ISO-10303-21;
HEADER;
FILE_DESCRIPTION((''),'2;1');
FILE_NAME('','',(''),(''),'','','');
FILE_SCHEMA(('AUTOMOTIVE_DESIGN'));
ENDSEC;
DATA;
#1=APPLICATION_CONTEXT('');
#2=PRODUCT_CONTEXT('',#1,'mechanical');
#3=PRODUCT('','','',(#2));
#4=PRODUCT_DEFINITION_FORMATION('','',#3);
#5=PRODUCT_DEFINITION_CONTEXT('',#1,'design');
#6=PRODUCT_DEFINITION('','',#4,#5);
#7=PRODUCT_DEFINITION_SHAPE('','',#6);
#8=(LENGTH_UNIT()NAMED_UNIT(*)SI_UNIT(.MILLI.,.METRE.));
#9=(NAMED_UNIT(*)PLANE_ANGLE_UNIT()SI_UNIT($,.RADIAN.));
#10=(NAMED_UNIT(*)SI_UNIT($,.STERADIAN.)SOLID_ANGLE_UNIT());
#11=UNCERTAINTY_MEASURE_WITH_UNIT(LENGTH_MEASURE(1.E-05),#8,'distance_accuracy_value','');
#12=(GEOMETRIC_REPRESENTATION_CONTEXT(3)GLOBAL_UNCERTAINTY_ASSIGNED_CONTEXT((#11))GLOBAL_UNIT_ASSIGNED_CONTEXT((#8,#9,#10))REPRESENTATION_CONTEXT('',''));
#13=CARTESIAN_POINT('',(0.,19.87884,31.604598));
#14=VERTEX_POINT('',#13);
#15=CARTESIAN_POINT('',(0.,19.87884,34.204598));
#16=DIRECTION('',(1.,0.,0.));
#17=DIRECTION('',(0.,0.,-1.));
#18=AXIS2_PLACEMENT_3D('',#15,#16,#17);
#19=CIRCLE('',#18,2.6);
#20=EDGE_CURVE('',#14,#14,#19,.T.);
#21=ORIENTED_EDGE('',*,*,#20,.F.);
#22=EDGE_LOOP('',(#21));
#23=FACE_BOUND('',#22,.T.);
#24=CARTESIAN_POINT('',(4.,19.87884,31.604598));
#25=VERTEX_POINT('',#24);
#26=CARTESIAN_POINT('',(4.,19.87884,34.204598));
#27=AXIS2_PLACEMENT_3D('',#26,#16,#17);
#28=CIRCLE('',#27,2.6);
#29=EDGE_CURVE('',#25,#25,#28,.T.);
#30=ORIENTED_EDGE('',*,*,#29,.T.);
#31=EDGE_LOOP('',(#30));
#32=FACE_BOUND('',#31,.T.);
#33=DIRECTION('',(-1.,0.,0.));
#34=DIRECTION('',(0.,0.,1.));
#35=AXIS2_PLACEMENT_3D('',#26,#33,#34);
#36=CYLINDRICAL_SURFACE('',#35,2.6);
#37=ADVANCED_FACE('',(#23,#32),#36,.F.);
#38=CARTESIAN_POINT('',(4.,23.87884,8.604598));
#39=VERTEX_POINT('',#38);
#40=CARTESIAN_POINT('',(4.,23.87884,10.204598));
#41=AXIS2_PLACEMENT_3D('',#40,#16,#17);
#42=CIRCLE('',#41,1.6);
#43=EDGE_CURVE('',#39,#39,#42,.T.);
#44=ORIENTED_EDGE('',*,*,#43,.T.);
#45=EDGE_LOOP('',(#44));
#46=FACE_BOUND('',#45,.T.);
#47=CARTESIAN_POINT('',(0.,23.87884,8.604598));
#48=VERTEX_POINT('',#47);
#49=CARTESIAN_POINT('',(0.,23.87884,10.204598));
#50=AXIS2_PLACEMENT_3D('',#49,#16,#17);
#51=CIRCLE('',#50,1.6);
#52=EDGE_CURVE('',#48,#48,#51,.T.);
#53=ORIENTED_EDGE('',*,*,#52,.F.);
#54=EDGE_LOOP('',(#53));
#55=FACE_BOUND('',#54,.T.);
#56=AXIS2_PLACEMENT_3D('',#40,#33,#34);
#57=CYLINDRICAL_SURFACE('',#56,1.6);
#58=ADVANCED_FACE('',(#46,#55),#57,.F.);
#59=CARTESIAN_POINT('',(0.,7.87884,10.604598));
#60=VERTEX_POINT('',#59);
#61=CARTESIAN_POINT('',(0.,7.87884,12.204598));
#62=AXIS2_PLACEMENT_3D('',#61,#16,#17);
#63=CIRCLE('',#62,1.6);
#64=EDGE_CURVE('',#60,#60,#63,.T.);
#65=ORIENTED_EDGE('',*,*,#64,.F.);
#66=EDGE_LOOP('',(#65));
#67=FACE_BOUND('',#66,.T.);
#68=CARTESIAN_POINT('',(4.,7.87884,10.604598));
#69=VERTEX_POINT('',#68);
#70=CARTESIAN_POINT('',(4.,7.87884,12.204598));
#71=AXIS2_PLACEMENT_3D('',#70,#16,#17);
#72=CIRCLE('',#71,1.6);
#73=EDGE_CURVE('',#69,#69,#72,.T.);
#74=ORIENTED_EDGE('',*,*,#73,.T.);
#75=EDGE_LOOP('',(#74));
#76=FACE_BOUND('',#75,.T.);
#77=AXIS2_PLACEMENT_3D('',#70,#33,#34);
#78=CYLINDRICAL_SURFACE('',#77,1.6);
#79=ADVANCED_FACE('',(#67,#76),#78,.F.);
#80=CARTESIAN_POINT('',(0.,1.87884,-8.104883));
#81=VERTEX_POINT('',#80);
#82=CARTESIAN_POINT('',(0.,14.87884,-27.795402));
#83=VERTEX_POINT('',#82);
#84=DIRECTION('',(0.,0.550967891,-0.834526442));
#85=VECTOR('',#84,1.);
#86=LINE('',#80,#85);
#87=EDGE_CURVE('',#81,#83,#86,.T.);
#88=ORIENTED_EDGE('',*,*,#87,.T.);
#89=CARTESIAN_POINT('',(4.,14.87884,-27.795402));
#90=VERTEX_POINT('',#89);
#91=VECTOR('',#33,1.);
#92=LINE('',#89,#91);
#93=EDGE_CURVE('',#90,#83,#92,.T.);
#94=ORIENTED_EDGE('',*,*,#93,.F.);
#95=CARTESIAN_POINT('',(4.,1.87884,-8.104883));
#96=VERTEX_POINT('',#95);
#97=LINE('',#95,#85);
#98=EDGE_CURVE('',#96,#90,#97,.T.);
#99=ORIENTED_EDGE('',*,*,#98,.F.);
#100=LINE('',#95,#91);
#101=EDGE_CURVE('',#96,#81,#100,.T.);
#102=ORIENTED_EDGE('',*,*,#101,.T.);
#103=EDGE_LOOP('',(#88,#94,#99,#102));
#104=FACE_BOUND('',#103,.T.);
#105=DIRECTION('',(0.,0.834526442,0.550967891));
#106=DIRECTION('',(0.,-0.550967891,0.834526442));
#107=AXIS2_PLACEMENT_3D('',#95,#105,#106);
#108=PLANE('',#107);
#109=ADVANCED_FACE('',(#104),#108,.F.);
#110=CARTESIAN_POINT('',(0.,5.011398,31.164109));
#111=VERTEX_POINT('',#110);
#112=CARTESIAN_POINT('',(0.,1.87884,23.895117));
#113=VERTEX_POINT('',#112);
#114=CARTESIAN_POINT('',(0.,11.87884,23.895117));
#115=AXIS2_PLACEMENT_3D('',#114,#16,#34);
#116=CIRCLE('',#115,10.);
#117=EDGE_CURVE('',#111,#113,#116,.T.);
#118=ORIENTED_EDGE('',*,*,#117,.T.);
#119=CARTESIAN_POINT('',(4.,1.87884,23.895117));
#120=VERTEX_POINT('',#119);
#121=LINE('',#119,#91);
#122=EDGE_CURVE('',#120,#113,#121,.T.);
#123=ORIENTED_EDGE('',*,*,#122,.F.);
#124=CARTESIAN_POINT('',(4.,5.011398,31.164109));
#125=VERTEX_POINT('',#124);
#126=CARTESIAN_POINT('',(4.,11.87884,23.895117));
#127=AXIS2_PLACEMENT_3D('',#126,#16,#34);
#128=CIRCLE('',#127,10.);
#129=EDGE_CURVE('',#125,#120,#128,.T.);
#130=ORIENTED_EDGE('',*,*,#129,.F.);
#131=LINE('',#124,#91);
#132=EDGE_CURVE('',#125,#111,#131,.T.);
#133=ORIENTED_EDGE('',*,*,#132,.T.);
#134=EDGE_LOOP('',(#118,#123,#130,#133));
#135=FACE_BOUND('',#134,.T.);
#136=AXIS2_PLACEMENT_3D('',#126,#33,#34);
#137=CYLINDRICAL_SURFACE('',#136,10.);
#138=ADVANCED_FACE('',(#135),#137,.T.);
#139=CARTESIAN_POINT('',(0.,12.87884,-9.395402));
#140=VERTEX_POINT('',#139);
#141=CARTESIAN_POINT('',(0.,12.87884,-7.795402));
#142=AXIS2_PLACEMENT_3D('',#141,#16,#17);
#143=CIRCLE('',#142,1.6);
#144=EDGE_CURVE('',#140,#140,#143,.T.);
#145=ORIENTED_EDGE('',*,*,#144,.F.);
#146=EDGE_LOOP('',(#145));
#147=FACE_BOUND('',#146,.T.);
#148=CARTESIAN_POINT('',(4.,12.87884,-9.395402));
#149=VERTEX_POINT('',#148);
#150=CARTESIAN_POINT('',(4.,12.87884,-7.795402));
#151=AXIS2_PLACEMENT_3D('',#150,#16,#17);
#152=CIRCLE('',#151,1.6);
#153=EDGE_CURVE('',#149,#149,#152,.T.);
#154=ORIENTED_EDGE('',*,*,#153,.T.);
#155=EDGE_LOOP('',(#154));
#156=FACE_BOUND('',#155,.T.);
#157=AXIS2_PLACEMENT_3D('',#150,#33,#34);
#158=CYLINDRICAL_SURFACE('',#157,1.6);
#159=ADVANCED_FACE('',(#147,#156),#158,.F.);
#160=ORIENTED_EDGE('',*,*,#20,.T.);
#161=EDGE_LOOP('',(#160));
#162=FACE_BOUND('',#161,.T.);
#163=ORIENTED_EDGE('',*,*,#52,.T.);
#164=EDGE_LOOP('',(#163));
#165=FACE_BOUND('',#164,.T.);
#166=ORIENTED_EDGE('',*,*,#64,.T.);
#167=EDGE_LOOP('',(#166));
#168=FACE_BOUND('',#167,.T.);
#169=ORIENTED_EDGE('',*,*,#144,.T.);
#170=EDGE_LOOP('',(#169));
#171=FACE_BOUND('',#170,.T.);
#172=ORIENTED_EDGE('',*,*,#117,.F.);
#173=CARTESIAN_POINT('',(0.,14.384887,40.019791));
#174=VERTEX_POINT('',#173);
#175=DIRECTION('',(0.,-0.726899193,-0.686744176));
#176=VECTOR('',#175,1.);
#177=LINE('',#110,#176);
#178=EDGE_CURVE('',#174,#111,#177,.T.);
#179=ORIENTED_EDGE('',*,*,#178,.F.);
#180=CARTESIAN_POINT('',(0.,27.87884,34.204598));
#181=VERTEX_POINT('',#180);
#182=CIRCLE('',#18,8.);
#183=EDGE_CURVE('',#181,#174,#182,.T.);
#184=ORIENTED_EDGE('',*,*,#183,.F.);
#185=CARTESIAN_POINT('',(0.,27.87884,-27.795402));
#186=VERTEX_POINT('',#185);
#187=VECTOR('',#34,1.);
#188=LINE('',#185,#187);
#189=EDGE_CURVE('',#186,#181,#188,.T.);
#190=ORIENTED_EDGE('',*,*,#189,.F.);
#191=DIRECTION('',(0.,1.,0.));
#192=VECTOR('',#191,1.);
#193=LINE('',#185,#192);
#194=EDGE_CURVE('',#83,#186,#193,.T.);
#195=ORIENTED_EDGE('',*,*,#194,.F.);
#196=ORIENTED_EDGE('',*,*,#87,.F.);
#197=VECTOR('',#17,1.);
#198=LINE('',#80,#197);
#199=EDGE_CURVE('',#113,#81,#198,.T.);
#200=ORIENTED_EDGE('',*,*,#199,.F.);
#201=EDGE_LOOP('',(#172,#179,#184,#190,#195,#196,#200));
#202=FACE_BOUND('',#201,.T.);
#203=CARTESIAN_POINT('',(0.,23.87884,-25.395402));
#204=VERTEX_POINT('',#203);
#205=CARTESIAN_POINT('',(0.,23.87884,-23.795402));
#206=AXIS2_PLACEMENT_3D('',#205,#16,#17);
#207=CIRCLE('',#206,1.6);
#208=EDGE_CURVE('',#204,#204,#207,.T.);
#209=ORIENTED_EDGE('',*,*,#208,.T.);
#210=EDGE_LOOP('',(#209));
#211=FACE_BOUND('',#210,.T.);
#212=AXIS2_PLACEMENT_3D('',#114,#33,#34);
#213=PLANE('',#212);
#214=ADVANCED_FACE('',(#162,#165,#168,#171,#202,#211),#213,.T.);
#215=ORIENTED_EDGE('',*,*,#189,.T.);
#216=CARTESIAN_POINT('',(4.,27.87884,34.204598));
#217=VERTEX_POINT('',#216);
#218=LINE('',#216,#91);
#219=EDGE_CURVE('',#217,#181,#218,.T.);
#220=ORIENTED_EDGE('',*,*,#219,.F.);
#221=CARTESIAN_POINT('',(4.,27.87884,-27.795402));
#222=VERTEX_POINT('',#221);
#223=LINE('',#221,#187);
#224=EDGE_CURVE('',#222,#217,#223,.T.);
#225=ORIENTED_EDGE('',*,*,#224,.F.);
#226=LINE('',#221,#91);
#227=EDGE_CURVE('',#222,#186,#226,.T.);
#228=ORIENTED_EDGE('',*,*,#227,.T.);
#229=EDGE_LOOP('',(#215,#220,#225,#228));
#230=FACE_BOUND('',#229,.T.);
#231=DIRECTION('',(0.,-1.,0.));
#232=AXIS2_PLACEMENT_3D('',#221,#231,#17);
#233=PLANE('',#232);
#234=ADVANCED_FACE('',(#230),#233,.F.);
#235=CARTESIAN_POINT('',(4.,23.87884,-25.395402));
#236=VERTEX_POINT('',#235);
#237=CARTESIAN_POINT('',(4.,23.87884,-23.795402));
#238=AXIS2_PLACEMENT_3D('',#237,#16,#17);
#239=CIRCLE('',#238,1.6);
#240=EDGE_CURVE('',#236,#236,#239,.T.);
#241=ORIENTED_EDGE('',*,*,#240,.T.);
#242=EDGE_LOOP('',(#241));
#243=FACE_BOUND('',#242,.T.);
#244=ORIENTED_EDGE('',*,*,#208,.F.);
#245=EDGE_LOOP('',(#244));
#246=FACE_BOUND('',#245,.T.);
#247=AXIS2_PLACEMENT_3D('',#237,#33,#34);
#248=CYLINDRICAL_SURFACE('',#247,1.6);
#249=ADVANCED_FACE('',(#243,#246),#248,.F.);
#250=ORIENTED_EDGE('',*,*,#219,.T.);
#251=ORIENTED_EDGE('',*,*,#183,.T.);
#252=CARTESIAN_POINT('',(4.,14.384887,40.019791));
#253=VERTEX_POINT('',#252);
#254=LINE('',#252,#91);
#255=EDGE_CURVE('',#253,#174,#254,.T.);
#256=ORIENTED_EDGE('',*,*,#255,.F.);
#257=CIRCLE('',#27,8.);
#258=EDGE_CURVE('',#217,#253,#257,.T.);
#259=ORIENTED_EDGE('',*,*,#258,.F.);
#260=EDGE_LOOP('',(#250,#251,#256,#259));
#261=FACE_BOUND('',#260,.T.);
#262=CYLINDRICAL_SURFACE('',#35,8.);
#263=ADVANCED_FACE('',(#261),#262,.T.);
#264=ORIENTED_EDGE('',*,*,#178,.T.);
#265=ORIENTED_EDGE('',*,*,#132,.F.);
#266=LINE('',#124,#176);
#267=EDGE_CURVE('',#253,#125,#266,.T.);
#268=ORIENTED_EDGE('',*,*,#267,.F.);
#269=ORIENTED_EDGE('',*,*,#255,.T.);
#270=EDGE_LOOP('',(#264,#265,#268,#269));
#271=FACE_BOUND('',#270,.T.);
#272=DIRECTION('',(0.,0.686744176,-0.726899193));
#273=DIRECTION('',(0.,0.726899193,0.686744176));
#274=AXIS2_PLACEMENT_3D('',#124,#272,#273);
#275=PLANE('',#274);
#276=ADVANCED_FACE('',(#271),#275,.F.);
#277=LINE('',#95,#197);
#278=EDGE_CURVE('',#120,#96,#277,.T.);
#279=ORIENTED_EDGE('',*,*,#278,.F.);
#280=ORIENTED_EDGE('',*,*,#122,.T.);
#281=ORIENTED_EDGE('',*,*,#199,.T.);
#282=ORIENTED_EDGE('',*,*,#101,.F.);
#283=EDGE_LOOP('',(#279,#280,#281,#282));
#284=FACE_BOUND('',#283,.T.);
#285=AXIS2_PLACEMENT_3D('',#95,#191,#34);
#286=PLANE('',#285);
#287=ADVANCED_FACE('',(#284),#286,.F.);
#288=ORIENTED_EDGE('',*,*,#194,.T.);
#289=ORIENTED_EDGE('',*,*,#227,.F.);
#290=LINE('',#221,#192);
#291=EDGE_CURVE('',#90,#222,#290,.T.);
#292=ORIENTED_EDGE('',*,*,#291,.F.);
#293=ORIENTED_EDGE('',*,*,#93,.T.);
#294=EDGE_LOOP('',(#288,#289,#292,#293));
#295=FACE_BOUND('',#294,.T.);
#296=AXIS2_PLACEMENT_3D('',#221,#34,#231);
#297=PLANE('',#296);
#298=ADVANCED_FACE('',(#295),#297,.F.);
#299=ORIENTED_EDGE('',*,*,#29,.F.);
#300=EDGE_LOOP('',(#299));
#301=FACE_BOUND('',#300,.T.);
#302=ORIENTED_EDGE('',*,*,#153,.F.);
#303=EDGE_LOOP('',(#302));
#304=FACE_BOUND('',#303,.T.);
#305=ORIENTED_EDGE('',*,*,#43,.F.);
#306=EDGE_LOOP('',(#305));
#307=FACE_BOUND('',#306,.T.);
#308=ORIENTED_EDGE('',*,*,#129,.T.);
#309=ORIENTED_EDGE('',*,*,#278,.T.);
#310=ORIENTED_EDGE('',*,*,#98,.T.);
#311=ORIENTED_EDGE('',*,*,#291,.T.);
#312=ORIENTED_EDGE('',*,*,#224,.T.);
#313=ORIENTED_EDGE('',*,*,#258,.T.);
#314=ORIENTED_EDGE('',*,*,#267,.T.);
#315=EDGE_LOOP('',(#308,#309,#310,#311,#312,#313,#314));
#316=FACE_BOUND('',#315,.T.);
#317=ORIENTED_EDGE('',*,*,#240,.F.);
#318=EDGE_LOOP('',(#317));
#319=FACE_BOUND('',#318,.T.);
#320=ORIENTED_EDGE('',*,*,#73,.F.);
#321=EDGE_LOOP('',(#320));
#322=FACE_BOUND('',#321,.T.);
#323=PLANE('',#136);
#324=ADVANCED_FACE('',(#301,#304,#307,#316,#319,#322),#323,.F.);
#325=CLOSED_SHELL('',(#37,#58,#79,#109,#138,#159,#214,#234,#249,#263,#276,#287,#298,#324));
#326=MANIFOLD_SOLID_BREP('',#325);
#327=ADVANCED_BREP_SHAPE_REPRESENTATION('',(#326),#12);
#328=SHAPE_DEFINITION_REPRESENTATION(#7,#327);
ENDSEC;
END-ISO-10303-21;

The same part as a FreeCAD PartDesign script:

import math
import FreeCAD as App
import Part
import Sketcher
Q = App.Units.Quantity

doc = App.newDocument("Part")
body = doc.addObject("PartDesign::Body", "Body")

sketch1 = body.newObject("Sketcher::SketchObject", "Sketch")
sketch1.AttachmentSupport = (doc.getObject("YZ_Plane"), [""])
sketch1.MapMode = "FlatFace"
sketch1.addGeometry(Part.LineSegment(App.Vector(1.87884, -8.104883, 0), App.Vector(14.87884, -27.795402, 0)), False)
sketch1.addGeometry(Part.LineSegment(App.Vector(14.87884, -27.795402, 0), App.Vector(27.87884, -27.795402, 0)), False)
sketch1.addGeometry(Part.LineSegment(App.Vector(27.87884, -27.795402, 0), App.Vector(27.87884, 34.204598, 0)), False)
sketch1.addGeometry(Part.ArcOfCircle(Part.Circle(App.Vector(19.87884, 34.204598, 0), App.Vector(0, 0, 1), 8), math.radians(0), math.radians(133.372932)), False)
sketch1.addGeometry(Part.LineSegment(App.Vector(14.384887, 40.019791, 0), App.Vector(5.011398, 31.164109, 0)), False)
sketch1.addGeometry(Part.ArcOfCircle(Part.Circle(App.Vector(11.87884, 23.895117, 0), App.Vector(0, 0, 1), 10), math.radians(133.372932), math.radians(180)), False)
sketch1.addGeometry(Part.LineSegment(App.Vector(1.87884, 23.895117, 0), App.Vector(1.87884, -8.104883, 0)), False)
sketch1.addGeometry(Part.Circle(App.Vector(7.87884, 12.204598, 0), App.Vector(0, 0, 1), 1.6), False)
sketch1.addGeometry(Part.Circle(App.Vector(12.87884, -7.795402, 0), App.Vector(0, 0, 1), 1.6), False)
sketch1.addGeometry(Part.Circle(App.Vector(19.87884, 34.204598, 0), App.Vector(0, 0, 1), 2.6), False)
sketch1.addGeometry(Part.Circle(App.Vector(23.87884, 10.204598, 0), App.Vector(0, 0, 1), 1.6), False)
sketch1.addGeometry(Part.Circle(App.Vector(23.87884, -23.795402, 0), App.Vector(0, 0, 1), 1.6), False)
sketch1.addConstraint(Sketcher.Constraint("Coincident", 0, 2, 1, 1))
sketch1.addConstraint(Sketcher.Constraint("Coincident", 1, 2, 2, 1))
sketch1.addConstraint(Sketcher.Constraint("Tangent", 2, 2, 3, 1))
sketch1.addConstraint(Sketcher.Constraint("Tangent", 3, 2, 4, 1))
sketch1.addConstraint(Sketcher.Constraint("Tangent", 4, 2, 5, 1))
sketch1.addConstraint(Sketcher.Constraint("Tangent", 5, 2, 6, 1))
sketch1.addConstraint(Sketcher.Constraint("Coincident", 6, 2, 0, 1))
sketch1.addConstraint(Sketcher.Constraint("Horizontal", 1))
sketch1.addConstraint(Sketcher.Constraint("Vertical", 2))
sketch1.addConstraint(Sketcher.Constraint("Vertical", 6))
sketch1.addConstraint(Sketcher.Constraint("Coincident", 9, 3, 3, 3))
sketch1.addConstraint(Sketcher.Constraint("Equal", 7, 8))
sketch1.addConstraint(Sketcher.Constraint("Equal", 8, 10))
sketch1.addConstraint(Sketcher.Constraint("Equal", 10, 11))
sketch1.addConstraint(Sketcher.Constraint("Vertical", 10, 3, 11, 3))
sketch1.addConstraint(Sketcher.Constraint("Radius", 3, Q("8 mm")))
sketch1.addConstraint(Sketcher.Constraint("Radius", 5, Q("10 mm")))
sketch1.addConstraint(Sketcher.Constraint("Diameter", 7, Q("3.2 mm")))
sketch1.addConstraint(Sketcher.Constraint("Diameter", 9, Q("5.2 mm")))
sketch1.addConstraint(Sketcher.Constraint("DistanceX", 1, 1, 1, 2, Q("13 mm")))
sketch1.addConstraint(Sketcher.Constraint("DistanceY", 2, 1, 2, 2, Q("62 mm")))
sketch1.addConstraint(Sketcher.Constraint("DistanceY", 6, 2, 6, 1, Q("32 mm")))
sketch1.addConstraint(Sketcher.Constraint("DistanceX", 5, 3, 3, 3, Q("8 mm")))
sketch1.addConstraint(Sketcher.Constraint("DistanceX", 7, 3, 5, 3, Q("4 mm")))
sketch1.addConstraint(Sketcher.Constraint("DistanceY", 7, 3, 3, 3, Q("22 mm")))
sketch1.addConstraint(Sketcher.Constraint("DistanceX", 7, 3, 8, 3, Q("5 mm")))
sketch1.addConstraint(Sketcher.Constraint("DistanceY", 8, 3, 7, 3, Q("20 mm")))
sketch1.addConstraint(Sketcher.Constraint("DistanceX", 7, 3, 10, 3, Q("16 mm")))
sketch1.addConstraint(Sketcher.Constraint("DistanceY", 10, 3, 7, 3, Q("2 mm")))
sketch1.addConstraint(Sketcher.Constraint("DistanceY", 11, 3, 8, 3, Q("16 mm")))
sketch1.addConstraint(Sketcher.Constraint("DistanceX", -1, 1, 4, 2, Q("5.011398 mm")))
sketch1.addConstraint(Sketcher.Constraint("Distance", 0, Q("23.594841 mm")))
sketch1.addConstraint(Sketcher.Constraint("DistanceY", -1, 1, 3, 2, Q("40.019791 mm")))
pad1 = body.newObject("PartDesign::Pad", "Pad")
pad1.Profile = sketch1
pad1.Length = 4

doc.recompute()
